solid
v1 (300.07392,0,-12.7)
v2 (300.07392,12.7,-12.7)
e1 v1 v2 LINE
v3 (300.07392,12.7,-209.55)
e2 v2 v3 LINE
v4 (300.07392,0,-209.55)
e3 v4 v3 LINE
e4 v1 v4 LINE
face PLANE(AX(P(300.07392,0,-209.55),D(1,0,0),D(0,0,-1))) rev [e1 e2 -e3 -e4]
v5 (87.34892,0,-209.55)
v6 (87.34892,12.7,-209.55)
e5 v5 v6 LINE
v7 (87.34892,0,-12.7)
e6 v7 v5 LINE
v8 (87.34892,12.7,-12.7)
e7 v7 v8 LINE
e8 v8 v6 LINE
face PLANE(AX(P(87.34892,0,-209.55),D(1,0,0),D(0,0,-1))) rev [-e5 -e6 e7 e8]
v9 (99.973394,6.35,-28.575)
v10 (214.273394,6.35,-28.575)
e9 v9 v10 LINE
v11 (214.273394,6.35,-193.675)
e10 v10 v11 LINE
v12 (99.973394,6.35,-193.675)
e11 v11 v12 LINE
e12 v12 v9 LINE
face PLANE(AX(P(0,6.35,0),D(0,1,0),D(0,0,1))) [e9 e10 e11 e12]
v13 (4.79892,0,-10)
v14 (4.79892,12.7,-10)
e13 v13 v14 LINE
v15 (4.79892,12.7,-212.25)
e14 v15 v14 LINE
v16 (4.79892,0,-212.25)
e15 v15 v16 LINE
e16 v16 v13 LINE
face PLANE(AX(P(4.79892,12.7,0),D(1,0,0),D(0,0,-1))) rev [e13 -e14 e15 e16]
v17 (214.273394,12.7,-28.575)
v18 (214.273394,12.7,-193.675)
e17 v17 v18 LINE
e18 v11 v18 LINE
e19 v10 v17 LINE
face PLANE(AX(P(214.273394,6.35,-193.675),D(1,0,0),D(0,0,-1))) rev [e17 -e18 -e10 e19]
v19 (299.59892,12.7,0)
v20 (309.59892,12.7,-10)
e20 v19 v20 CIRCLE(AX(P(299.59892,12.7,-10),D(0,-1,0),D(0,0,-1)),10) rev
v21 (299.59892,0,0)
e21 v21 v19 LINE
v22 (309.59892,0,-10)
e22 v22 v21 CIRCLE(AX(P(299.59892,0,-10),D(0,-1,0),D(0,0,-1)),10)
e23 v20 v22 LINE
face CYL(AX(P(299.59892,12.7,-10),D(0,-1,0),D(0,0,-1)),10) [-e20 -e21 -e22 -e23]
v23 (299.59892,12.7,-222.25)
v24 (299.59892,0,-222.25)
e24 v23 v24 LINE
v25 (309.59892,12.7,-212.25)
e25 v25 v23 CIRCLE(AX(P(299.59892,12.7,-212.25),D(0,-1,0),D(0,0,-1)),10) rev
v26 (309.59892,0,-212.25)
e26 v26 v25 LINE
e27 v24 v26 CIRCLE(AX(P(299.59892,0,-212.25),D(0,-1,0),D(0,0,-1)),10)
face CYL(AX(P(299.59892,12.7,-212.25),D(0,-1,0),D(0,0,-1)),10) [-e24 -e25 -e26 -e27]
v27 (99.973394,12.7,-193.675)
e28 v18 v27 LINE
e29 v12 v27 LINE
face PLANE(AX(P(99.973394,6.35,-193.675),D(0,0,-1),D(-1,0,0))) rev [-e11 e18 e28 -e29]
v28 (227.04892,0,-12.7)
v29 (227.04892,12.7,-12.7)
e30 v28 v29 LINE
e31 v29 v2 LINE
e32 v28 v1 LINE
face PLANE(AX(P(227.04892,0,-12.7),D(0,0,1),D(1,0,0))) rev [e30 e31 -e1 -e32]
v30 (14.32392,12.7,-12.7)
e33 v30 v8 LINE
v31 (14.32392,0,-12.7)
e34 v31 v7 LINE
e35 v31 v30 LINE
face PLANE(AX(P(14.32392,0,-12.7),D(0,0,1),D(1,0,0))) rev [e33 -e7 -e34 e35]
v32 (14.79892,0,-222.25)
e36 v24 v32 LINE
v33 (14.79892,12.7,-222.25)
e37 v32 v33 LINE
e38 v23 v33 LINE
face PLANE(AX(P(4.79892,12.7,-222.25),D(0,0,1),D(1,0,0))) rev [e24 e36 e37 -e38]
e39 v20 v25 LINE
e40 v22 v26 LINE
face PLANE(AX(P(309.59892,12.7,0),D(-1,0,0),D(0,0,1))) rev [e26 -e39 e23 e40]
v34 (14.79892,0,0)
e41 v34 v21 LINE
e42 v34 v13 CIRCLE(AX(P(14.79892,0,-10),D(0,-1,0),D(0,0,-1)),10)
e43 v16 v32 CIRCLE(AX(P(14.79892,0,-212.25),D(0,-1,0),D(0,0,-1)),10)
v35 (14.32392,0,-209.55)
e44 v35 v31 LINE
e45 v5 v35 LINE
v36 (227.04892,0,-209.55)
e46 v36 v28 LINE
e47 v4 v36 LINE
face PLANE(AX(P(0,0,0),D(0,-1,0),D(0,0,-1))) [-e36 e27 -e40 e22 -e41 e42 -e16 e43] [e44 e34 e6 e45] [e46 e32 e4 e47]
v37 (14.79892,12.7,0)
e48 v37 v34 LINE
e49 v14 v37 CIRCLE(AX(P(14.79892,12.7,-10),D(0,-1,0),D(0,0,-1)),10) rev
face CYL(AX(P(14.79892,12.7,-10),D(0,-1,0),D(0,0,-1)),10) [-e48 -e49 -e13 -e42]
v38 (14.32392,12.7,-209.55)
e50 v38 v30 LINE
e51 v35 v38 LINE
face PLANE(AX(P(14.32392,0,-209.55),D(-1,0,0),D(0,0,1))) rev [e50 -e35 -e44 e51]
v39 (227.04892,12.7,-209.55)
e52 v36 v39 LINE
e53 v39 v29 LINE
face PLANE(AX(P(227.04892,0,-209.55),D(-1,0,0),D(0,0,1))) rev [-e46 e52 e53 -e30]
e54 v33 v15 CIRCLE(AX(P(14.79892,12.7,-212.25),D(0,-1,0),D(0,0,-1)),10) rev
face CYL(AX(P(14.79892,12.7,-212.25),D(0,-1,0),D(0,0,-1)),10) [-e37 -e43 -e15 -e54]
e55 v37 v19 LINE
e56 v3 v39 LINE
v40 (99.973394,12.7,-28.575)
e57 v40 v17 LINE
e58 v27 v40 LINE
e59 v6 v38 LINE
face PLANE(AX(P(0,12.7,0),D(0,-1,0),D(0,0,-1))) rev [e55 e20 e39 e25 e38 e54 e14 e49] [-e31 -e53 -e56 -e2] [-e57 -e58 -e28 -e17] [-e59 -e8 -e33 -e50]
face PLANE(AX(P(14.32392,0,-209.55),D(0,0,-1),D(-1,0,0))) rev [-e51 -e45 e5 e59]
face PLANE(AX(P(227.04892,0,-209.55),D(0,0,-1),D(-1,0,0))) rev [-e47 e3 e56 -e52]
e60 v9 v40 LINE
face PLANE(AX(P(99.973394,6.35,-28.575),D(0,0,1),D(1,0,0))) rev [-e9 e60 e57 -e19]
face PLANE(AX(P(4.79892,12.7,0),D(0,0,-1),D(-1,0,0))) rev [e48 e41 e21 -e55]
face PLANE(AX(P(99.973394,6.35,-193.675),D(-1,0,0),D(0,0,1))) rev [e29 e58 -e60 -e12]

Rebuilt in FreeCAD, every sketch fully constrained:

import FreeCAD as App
import Part
import Sketcher
from FreeCAD import Vector
Q = App.Units.Quantity


def edges_at(feature, points):
    """Names of the edges that pass closest to the given points."""
    edges = feature.Shape.Edges
    near = lambda p: min(range(len(edges)), key=lambda i: edges[i].distToShape(Part.Vertex(*p))[0])
    return sorted({f"Edge{near(p) + 1}" for p in points})


def add_polygon(sketch, points):
    """Adds a closed chain of lines whose ends are joined by coincident constraints."""
    first, n = sketch.GeometryCount, len(points)
    for a, b in zip(points, points[1:] + points[:1]):
        sketch.addGeometry(Part.LineSegment(App.Vector(*a, 0), App.Vector(*b, 0)), False)
    for i in range(n):
        sketch.addConstraint(Sketcher.Constraint("Coincident", first + i, 2, first + (i + 1) % n, 1))

doc = App.newDocument("Part")
body = doc.addObject("PartDesign::Body", "Body")

# Sketch on XZ plane
sketch1 = body.newObject("Sketcher::SketchObject", "Sketch")
sketch1.AttachmentSupport = (doc.getObject("XZ_Plane"), [""])
sketch1.MapMode = "FlatFace"
add_polygon(sketch1, [(5, -222), (5, 0), (310, 0), (310, -222)])  # lines 0-3
sketch1.addConstraint(Sketcher.Constraint("Vertical", 0))
sketch1.addConstraint(Sketcher.Constraint("Horizontal", 1))
sketch1.addConstraint(Sketcher.Constraint("Vertical", 2))
sketch1.addConstraint(Sketcher.Constraint("Horizontal", 3))
sketch1.addConstraint(Sketcher.Constraint("PointOnObject", 0, 2, -1))
sketch1.addConstraint(Sketcher.Constraint("DistanceX", 1, 1, 1, 2, Q("12 in")))
sketch1.addConstraint(Sketcher.Constraint("DistanceY", 0, 1, 0, 2, Q("8.75 in")))
sketch1.addConstraint(Sketcher.Constraint("DistanceX", -1, 1, 0, 2, 4.79892))
pad1 = body.newObject("PartDesign::Pad", "Pad")
pad1.Profile = sketch1
pad1.Length = Q("0.5 in")
pad1.Reversed = True

# Sketch on XZ plane
sketch2 = body.newObject("Sketcher::SketchObject", "Sketch001")
sketch2.AttachmentSupport = (doc.getObject("XZ_Plane"), [""])
sketch2.MapMode = "FlatFace"
sketch2.AttachmentOffset = App.Placement(Vector(0, 0, -0.5 * 25.4), App.Rotation())
add_polygon(sketch2, [(14, -210), (14, -13), (87, -13), (87, -210)])  # lines 0-3
add_polygon(sketch2, [(227, -210), (227, -13), (300, -13), (300, -210)])  # lines 4-7
sketch2.addConstraint(Sketcher.Constraint("Vertical", 0))
sketch2.addConstraint(Sketcher.Constraint("Horizontal", 1))
sketch2.addConstraint(Sketcher.Constraint("Vertical", 2))
sketch2.addConstraint(Sketcher.Constraint("Horizontal", 3))
sketch2.addConstraint(Sketcher.Constraint("Vertical", 4))
sketch2.addConstraint(Sketcher.Constraint("Horizontal", 5))
sketch2.addConstraint(Sketcher.Constraint("Vertical", 6))
sketch2.addConstraint(Sketcher.Constraint("Horizontal", 7))
sketch2.addConstraint(Sketcher.Constraint("Horizontal", 1, 2, 4, 2))
sketch2.addConstraint(Sketcher.Constraint("Horizontal", 3, 2, 6, 2))
sketch2.addConstraint(Sketcher.Constraint("Equal", 3, 5))
sketch2.addConstraint(Sketcher.Constraint("DistanceY", 0, 1, 0, 2, Q("7.75 in")))
sketch2.addConstraint(Sketcher.Constraint("DistanceY", 0, 2, -1, 1, Q("0.5 in")))
sketch2.addConstraint(Sketcher.Constraint("DistanceX", 1, 2, 4, 2, Q("5.5 in")))
sketch2.addConstraint(Sketcher.Constraint("DistanceX", 1, 1, 1, 2, Q("2.875 in")))
sketch2.addConstraint(Sketcher.Constraint("DistanceX", -1, 1, 0, 2, 14.32392))
pocket1 = body.newObject("PartDesign::Pocket", "Pocket")
pocket1.Profile = sketch2
pocket1.Length = Q("0.5 in")
pocket1.Reversed = True

# Sketch on XZ plane
sketch3 = body.newObject("Sketcher::SketchObject", "Sketch002")
sketch3.AttachmentSupport = (doc.getObject("XZ_Plane"), [""])
sketch3.MapMode = "FlatFace"
sketch3.AttachmentOffset = App.Placement(Vector(0, 0, -0.5 * 25.4), App.Rotation())
add_polygon(sketch3, [(100, -194), (100, -29), (214, -29), (214, -194)])  # lines 0-3
sketch3.addConstraint(Sketcher.Constraint("Vertical", 0))
sketch3.addConstraint(Sketcher.Constraint("Horizontal", 1))
sketch3.addConstraint(Sketcher.Constraint("Vertical", 2))
sketch3.addConstraint(Sketcher.Constraint("Horizontal", 3))
sketch3.addConstraint(Sketcher.Constraint("DistanceX", 1, 1, 1, 2, Q("4.5 in")))
sketch3.addConstraint(Sketcher.Constraint("DistanceY", 0, 1, 0, 2, Q("6.5 in")))
sketch3.addConstraint(Sketcher.Constraint("DistanceY", 0, 2, -1, 1, Q("1.125 in")))
sketch3.addConstraint(Sketcher.Constraint("DistanceX", -1, 1, 0, 2, 99.973394))
pocket2 = body.newObject("PartDesign::Pocket", "Pocket001")
pocket2.Profile = sketch3
pocket2.Length = Q("0.25 in")
pocket2.Reversed = True
doc.recompute()

fillet = body.newObject("PartDesign::Fillet", "Fillet")
fillet.Base = (pocket2, edges_at(pocket2, [
    (4.799, 6.35, -222.25),
    (309.599, 6.35, -222.25),
    (309.599, 6.35, 0),
    (4.799, 6.35, 0),
]))
fillet.Radius = 10

doc.recompute()
